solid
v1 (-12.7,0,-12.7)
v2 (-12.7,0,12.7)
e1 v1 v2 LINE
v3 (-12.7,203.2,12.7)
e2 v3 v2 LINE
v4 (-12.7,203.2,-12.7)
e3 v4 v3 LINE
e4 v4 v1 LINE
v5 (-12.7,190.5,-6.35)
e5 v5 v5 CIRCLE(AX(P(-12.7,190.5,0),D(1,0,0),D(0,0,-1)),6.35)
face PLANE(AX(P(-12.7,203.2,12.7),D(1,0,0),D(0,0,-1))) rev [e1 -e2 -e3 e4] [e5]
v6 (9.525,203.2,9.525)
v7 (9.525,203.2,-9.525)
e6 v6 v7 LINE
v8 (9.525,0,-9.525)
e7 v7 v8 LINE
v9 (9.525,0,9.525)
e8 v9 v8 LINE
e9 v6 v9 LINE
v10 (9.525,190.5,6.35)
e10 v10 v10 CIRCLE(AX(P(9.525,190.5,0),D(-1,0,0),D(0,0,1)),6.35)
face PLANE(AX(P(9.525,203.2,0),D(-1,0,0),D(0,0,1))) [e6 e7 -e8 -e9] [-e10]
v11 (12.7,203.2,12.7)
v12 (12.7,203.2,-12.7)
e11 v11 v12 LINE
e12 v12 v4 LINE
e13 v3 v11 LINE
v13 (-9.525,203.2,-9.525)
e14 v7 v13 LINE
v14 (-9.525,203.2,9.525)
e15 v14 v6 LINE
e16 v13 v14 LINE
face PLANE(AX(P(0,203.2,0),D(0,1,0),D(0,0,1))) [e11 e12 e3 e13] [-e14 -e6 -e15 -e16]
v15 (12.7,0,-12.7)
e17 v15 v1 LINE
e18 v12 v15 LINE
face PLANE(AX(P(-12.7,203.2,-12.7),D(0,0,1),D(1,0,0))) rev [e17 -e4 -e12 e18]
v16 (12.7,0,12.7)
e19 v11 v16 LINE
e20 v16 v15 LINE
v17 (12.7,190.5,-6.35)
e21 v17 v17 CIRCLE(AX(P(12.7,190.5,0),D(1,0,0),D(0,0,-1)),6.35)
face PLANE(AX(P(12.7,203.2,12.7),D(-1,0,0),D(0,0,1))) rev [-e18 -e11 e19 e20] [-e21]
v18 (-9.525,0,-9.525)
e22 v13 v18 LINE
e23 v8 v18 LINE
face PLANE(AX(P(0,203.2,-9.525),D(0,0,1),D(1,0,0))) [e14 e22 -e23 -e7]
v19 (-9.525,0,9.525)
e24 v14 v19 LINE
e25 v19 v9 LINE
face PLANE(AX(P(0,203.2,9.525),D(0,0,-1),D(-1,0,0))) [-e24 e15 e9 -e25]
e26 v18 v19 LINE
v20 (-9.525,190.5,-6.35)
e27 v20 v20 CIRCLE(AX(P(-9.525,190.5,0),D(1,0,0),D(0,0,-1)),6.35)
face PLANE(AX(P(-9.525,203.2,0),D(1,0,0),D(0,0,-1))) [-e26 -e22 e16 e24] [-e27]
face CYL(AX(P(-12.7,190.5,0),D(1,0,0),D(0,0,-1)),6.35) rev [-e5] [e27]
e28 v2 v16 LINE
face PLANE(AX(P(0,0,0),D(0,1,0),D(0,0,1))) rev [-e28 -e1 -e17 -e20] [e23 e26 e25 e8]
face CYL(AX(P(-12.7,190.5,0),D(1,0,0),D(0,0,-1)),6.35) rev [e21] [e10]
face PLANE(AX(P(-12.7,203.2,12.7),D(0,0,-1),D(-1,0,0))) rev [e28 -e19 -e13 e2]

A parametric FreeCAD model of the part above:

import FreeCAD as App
import Part
import Sketcher
Q = App.Units.Quantity


def add_polygon(sketch, points):
    """Adds a closed chain of lines whose ends are joined by coincident constraints."""
    first, n = sketch.GeometryCount, len(points)
    for a, b in zip(points, points[1:] + points[:1]):
        sketch.addGeometry(Part.LineSegment(App.Vector(*a, 0), App.Vector(*b, 0)), False)
    for i in range(n):
        sketch.addConstraint(Sketcher.Constraint("Coincident", first + i, 2, first + (i + 1) % n, 1))

doc = App.newDocument("Part")
body = doc.addObject("PartDesign::Body", "Body")

# Sketch on XZ plane
sketch1 = body.newObject("Sketcher::SketchObject", "Sketch")
sketch1.AttachmentSupport = (doc.getObject("XZ_Plane"), [""])
sketch1.MapMode = "FlatFace"
add_polygon(sketch1, [(-13, -13), (-13, 13), (13, 13), (13, -13)])  # lines 0-3
add_polygon(sketch1, [(10, 10), (-10, 10), (-10, -10), (10, -10)])  # lines 4-7
sketch1.addConstraint([
    Sketcher.Constraint("Vertical", 0),
    Sketcher.Constraint("Horizontal", 1),
    Sketcher.Constraint("Vertical", 2),
    Sketcher.Constraint("Horizontal", 3),
    Sketcher.Constraint("Horizontal", 4),
    Sketcher.Constraint("Vertical", 5),
    Sketcher.Constraint("Horizontal", 6),
    Sketcher.Constraint("Vertical", 7),
    Sketcher.Constraint("Symmetric", 0, 2, 2, 2, -1, 1),
    Sketcher.Constraint("Symmetric", 4, 2, 6, 2, -1, 1),
    Sketcher.Constraint("Equal", 3, 0),
    Sketcher.Constraint("Equal", 6, 5),
    Sketcher.Constraint("DistanceX", 1, 1, 1, 2, Q("1 in")),
    Sketcher.Constraint("DistanceX", 4, 2, 4, 1, Q("0.75 in")),
])
pad1 = body.newObject("PartDesign::Pad", "Pad")
pad1.Profile = sketch1
pad1.Length = Q("8 in")
pad1.Reversed = True

# Sketch on YZ plane
sketch2 = body.newObject("Sketcher::SketchObject", "Sketch001")
sketch2.AttachmentSupport = (doc.getObject("YZ_Plane"), [""])
sketch2.MapMode = "FlatFace"
sketch2.AttachmentOffset = App.Placement(App.Vector(0, 0, 0.5 * 25.4), App.Rotation())
sketch2.addGeometry(Part.Circle(App.Vector(190, 0, 0), App.Vector(0, 0, 1), 6), False)
sketch2.addConstraint([
    Sketcher.Constraint("PointOnObject", 0, 3, -1),
    Sketcher.Constraint("Diameter", 0, Q("0.5 in")),
    Sketcher.Constraint("DistanceX", -1, 1, 0, 3, Q("7.5 in")),
])
pocket1 = body.newObject("PartDesign::Pocket", "Pocket")
pocket1.Profile = sketch2
pocket1.Type = "ThroughAll"

doc.recompute()
